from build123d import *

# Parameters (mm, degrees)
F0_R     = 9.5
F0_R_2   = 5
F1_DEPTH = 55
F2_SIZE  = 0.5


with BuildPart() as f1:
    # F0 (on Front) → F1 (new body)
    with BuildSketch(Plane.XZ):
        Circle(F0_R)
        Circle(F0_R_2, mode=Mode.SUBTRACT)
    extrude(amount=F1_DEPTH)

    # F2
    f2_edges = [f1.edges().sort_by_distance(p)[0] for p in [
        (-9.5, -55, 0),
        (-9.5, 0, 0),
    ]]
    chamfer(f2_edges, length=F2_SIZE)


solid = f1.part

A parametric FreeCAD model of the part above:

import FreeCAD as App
import Part
import Sketcher


def edges_at(feature, points):
    """Names of the edges that pass closest to the given points."""
    edges = feature.Shape.Edges
    near = lambda p: min(range(len(edges)), key=lambda i: edges[i].distToShape(Part.Vertex(*p))[0])
    return sorted({f"Edge{near(p) + 1}" for p in points})

doc = App.newDocument("Part")
body = doc.addObject("PartDesign::Body", "Body")

# Sketch on XZ plane
sketch1 = body.newObject("Sketcher::SketchObject", "Sketch")
sketch1.AttachmentSupport = (doc.getObject("XZ_Plane"), [""])
sketch1.MapMode = "FlatFace"
sketch1.addGeometry(Part.Circle(App.Vector(0, 0, 0), App.Vector(0, 0, 1), 10), False)
sketch1.addGeometry(Part.Circle(App.Vector(0, 0, 0), App.Vector(0, 0, 1), 5), False)
sketch1.addConstraint(Sketcher.Constraint("Coincident", 0, 3, -1, 1))
sketch1.addConstraint(Sketcher.Constraint("Coincident", 1, 3, -1, 1))
sketch1.addConstraint(Sketcher.Constraint("Diameter", 0, 19.0))
sketch1.addConstraint(Sketcher.Constraint("Diameter", 1, 10.0))
pad1 = body.newObject("PartDesign::Pad", "Pad")
pad1.Profile = sketch1
pad1.Length = 55
doc.recompute()

chamfer = body.newObject("PartDesign::Chamfer", "Chamfer")
chamfer.Base = (pad1, edges_at(pad1, [(-9.5, -55, 0), (-9.5, 0, 0)]))
chamfer.Size = 0.5

doc.recompute()
